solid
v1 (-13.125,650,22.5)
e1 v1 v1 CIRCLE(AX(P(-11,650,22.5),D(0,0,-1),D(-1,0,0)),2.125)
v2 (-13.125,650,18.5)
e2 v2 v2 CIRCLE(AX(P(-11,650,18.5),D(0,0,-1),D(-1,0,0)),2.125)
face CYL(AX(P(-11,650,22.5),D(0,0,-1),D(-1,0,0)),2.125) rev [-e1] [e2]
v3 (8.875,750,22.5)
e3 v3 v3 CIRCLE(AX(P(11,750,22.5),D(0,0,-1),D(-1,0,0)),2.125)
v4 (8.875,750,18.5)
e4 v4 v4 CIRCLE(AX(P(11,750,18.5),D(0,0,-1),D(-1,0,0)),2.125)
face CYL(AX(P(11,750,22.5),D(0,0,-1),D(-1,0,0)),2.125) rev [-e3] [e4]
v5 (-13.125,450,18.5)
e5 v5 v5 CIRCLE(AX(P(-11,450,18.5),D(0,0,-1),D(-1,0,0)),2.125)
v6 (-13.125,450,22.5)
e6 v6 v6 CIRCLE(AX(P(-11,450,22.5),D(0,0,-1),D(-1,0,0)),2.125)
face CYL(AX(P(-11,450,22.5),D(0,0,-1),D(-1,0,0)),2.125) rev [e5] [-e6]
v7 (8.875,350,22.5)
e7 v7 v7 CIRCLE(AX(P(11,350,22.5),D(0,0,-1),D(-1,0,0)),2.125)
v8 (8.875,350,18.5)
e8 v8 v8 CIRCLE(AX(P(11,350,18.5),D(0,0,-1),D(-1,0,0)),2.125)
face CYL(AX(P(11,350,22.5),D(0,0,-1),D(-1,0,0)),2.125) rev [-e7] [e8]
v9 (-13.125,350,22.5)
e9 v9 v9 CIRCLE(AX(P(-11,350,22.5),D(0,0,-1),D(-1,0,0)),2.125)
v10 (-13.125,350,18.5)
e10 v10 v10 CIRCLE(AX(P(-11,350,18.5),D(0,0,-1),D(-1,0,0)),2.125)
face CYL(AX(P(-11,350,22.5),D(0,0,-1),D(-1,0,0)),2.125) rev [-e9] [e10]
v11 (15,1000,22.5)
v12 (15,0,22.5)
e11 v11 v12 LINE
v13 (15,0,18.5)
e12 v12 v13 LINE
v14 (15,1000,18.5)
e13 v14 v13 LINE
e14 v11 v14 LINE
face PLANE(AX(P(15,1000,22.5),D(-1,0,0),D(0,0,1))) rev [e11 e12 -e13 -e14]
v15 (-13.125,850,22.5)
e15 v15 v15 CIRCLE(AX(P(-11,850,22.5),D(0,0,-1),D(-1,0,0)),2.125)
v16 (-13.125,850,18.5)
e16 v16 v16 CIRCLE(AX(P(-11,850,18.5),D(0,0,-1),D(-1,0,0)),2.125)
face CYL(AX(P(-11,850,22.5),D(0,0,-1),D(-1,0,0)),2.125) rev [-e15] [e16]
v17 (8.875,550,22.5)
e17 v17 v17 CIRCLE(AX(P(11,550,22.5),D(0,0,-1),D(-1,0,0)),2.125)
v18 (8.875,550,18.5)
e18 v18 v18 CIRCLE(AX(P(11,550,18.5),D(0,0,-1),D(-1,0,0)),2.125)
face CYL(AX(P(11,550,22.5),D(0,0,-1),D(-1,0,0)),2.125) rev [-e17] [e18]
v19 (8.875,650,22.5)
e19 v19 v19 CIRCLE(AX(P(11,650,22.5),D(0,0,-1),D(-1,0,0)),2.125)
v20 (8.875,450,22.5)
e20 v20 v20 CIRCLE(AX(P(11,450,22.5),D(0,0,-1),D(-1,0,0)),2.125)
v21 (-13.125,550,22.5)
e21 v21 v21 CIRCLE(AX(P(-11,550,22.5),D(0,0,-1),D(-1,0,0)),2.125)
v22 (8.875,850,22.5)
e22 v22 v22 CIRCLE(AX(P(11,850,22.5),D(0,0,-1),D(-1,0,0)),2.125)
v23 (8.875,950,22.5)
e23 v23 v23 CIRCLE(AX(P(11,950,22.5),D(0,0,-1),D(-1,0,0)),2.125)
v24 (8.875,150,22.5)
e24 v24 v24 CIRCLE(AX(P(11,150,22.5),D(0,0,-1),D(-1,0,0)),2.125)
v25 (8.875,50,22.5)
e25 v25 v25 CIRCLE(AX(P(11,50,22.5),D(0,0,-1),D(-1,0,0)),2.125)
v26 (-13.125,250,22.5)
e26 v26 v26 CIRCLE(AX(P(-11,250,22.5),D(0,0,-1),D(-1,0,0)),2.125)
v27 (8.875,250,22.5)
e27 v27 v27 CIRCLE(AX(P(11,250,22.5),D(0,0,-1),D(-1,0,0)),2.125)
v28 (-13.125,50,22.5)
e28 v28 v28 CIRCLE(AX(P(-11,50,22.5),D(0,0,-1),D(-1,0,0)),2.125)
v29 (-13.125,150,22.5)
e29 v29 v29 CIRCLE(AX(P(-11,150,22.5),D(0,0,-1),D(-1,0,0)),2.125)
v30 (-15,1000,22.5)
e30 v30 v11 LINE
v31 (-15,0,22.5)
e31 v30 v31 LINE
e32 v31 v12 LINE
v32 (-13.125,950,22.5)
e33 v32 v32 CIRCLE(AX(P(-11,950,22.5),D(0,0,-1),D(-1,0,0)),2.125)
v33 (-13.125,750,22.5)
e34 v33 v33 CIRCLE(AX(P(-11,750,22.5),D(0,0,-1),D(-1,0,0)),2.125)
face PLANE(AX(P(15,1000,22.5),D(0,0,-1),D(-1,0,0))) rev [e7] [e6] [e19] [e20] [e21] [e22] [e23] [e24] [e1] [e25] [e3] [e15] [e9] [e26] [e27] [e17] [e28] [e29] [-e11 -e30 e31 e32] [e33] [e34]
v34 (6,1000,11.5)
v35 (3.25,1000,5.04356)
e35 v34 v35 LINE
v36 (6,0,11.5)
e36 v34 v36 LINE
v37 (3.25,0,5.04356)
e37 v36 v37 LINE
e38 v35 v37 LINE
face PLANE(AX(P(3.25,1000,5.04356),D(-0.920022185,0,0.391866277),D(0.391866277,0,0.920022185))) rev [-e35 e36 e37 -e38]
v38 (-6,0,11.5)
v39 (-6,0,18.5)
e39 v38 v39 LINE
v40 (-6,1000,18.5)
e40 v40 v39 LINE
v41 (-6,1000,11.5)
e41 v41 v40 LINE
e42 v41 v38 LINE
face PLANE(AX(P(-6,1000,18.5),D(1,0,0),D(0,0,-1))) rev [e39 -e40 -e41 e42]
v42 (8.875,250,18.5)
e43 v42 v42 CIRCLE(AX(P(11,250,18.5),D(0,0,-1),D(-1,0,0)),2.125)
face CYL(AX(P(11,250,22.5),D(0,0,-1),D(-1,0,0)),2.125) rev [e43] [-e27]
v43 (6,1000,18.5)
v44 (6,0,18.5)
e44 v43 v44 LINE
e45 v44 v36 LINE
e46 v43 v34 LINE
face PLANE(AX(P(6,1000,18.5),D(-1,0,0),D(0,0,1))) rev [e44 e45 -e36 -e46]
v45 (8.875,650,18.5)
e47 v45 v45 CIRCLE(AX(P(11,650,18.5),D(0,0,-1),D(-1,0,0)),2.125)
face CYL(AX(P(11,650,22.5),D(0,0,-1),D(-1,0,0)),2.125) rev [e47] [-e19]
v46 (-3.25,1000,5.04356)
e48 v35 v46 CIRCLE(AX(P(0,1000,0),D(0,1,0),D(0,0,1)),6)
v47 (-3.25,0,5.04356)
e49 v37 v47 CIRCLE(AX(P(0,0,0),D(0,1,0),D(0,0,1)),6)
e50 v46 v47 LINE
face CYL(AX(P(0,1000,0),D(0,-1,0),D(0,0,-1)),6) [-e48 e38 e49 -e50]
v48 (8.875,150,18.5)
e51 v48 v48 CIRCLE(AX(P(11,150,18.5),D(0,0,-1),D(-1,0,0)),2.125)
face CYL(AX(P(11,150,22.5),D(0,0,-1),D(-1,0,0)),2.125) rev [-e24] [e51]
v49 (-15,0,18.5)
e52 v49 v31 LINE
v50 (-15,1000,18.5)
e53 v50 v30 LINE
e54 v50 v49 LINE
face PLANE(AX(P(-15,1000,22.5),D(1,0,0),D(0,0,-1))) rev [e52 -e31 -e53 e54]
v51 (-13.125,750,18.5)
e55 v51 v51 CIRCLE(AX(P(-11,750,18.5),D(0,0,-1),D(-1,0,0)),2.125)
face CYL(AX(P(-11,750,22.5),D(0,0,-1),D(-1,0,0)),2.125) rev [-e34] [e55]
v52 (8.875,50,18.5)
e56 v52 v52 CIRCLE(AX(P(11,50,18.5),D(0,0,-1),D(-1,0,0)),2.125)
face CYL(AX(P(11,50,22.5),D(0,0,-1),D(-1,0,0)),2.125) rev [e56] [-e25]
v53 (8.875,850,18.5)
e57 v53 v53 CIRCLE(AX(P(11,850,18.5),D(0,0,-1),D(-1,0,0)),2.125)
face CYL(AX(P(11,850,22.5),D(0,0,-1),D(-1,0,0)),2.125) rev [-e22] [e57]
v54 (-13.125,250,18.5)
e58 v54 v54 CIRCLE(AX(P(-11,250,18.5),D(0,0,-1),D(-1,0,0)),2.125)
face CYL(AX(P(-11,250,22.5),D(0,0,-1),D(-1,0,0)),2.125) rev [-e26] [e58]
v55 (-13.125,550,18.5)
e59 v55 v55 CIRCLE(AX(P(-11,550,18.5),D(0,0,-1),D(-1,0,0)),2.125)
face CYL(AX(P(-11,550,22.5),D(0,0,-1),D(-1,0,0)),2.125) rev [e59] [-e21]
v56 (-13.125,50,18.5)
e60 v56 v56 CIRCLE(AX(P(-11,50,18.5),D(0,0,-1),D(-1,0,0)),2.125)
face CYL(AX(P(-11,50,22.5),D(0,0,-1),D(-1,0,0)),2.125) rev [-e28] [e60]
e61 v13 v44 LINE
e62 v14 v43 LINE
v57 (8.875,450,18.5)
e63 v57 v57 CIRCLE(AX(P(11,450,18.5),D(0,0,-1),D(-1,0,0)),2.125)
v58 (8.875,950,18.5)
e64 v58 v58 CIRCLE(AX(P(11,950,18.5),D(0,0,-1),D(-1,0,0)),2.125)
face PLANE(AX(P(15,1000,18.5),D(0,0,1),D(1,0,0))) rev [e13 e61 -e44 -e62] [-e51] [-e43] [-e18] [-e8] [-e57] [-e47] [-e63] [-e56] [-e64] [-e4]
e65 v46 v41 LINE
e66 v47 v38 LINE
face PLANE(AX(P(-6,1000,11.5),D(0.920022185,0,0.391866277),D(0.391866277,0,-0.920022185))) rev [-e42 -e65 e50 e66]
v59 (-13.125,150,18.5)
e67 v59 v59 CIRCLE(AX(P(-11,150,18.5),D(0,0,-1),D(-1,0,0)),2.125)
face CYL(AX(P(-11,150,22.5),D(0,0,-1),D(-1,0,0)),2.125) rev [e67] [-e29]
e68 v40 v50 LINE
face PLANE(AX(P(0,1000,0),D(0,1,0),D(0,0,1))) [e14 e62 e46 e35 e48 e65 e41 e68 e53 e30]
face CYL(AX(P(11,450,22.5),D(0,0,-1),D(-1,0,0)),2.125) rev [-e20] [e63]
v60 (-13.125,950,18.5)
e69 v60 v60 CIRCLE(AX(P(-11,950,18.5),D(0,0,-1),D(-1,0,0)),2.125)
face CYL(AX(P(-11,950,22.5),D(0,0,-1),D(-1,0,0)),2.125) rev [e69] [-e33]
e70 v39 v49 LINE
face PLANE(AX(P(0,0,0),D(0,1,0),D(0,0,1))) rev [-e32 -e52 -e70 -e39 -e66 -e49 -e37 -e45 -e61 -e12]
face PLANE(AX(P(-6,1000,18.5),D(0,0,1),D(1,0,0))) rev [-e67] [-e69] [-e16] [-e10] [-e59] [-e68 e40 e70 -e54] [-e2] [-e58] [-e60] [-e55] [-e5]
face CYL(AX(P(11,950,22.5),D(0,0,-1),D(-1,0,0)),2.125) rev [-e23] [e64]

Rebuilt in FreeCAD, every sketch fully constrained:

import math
import FreeCAD as App
import Part
import Sketcher

V = App.Vector

doc = App.newDocument("Part")
body = doc.addObject("PartDesign::Body", "Body")

sketch1 = body.newObject("Sketcher::SketchObject", "Sketch")
sketch1.AttachmentSupport = (doc.getObject("XZ_Plane"), [""])
sketch1.MapMode = "FlatFace"
sketch1.addGeometry([
    Part.LineSegment(V(-15, 22.5, 0), V(15, 22.5, 0)),
    Part.LineSegment(V(15, 22.5, 0), V(15, 18.5, 0)),
    Part.LineSegment(V(15, 18.5, 0), V(6, 18.5, 0)),
    Part.LineSegment(V(6, 18.5, 0), V(6, 11.5, 0)),
    Part.LineSegment(V(6, 11.5, 0), V(3.2, 5, 0)),
    Part.ArcOfCircle(Part.Circle(V(0, 0, 0), V(0, 0, 1), 6), math.radians(123), math.radians(417)),
    Part.LineSegment(V(-3.2, 5, 0), V(-6, 11.5, 0)),
    Part.LineSegment(V(-6, 11.5, 0), V(-6, 18.5, 0)),
    Part.LineSegment(V(-6, 18.5, 0), V(-15, 18.5, 0)),
    Part.LineSegment(V(-15, 18.5, 0), V(-15, 22.5, 0)),
], False)
sketch1.addConstraint([
    Sketcher.Constraint("Coincident", 0, 2, 1, 1),
    Sketcher.Constraint("Coincident", 1, 2, 2, 1),
    Sketcher.Constraint("Coincident", 2, 2, 3, 1),
    Sketcher.Constraint("Coincident", 3, 2, 4, 1),
    Sketcher.Constraint("Coincident", 4, 2, 5, 2),
    Sketcher.Constraint("Coincident", 5, 1, 6, 1),
    Sketcher.Constraint("Coincident", 6, 2, 7, 1),
    Sketcher.Constraint("Coincident", 7, 2, 8, 1),
    Sketcher.Constraint("Coincident", 8, 2, 9, 1),
    Sketcher.Constraint("Coincident", 9, 2, 0, 1),
    Sketcher.Constraint("Horizontal", 0),
    Sketcher.Constraint("Vertical", 1),
    Sketcher.Constraint("Horizontal", 2),
    Sketcher.Constraint("Vertical", 3),
    Sketcher.Constraint("Vertical", 7),
    Sketcher.Constraint("Horizontal", 8),
    Sketcher.Constraint("Vertical", 9),
    Sketcher.Constraint("Coincident", 5, 3, -1, 1),
    Sketcher.Constraint("Symmetric", 3, 2, 6, 2, -2),
    Sketcher.Constraint("Symmetric", 1, 2, 8, 2, -2),
    Sketcher.Constraint("Horizontal", 4, 2, 5, 1),
    Sketcher.Constraint("Radius", 5, 6.0),
    Sketcher.Constraint("DistanceX", 0, 1, 0, 2, 30.0),
    Sketcher.Constraint("DistanceX", 2, 2, 2, 1, 9.0),
    Sketcher.Constraint("DistanceY", 1, 2, 1, 1, 4.0),
    Sketcher.Constraint("DistanceY", 3, 2, 3, 1, 7.0),
    Sketcher.Constraint("DistanceY", -1, 1, 0, 2, 22.5),
    Sketcher.Constraint("DistanceX", 5, 1, 4, 2, 6.5),
])
pad1 = body.newObject("PartDesign::Pad", "Pad")
pad1.Profile = sketch1
pad1.Length = 1000
pad1.Reversed = True

sketch2 = body.newObject("Sketcher::SketchObject", "Sketch001")
sketch2.AttachmentSupport = (doc.getObject("XY_Plane"), [""])
sketch2.MapMode = "FlatFace"
sketch2.AttachmentOffset = App.Placement(V(0, 0, 18.5), App.Rotation())
sketch2.addGeometry([
    Part.Circle(V(11, 950, 0), V(0, 0, 1), 2.1),
    Part.Circle(V(-11, 950, 0), V(0, 0, 1), 2.1),
], False)
sketch2.addConstraint([
    Sketcher.Constraint("Equal", 0, 1),
    Sketcher.Constraint("Symmetric", 0, 3, 1, 3, -2),
    Sketcher.Constraint("Diameter", 0, 4.25),
    Sketcher.Constraint("DistanceX", -1, 1, 0, 3, 11.0),
    Sketcher.Constraint("DistanceY", -1, 1, 0, 3, 950.0),
])
pocket1 = body.newObject("PartDesign::Pocket", "Pocket")
pocket1.Profile = sketch2
pocket1.Type = "ThroughAll"
pocket1.Reversed = True
doc.recompute()

linearpattern = body.newObject("PartDesign::LinearPattern", "LinearPattern")
linearpattern.Originals = [pocket1]
linearpattern.Direction = (doc.getObject("Y_Axis"), [""])
linearpattern.Mode = "offset"
linearpattern.Offset = 100
linearpattern.Occurrences = 10
linearpattern.Reversed = True
body.Tip = linearpattern

doc.recompute()
